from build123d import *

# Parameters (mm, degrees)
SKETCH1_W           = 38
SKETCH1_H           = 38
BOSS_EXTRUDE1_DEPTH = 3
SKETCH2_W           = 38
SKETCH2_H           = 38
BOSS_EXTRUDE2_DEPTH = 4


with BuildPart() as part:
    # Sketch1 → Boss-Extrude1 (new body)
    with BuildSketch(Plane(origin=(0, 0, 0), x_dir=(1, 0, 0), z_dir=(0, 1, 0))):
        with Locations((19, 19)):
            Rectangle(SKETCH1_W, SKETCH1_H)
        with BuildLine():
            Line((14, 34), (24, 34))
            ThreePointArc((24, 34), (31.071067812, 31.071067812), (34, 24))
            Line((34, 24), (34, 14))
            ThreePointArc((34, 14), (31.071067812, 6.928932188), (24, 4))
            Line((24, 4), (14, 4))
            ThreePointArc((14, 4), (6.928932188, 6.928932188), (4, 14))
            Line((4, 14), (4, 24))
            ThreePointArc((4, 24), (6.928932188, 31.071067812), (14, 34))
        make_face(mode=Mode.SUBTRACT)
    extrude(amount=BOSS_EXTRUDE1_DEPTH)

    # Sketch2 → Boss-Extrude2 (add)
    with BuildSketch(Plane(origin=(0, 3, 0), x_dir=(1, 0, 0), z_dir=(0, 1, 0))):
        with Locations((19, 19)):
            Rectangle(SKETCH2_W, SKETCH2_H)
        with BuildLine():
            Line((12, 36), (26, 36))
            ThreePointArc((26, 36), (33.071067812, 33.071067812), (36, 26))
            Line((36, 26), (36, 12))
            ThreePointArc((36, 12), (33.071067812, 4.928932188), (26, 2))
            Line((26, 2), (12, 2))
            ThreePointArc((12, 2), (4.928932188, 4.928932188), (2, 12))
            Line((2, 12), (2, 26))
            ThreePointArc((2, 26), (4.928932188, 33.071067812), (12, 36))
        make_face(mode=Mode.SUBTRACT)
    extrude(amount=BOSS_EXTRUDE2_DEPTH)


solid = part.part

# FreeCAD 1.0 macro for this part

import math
import FreeCAD as App
import Part
import Sketcher
from FreeCAD import Vector


def add_polygon(sketch, points):
    """Adds a closed chain of lines whose ends are joined by coincident constraints."""
    first, n = sketch.GeometryCount, len(points)
    for a, b in zip(points, points[1:] + points[:1]):
        sketch.addGeometry(Part.LineSegment(App.Vector(*a, 0), App.Vector(*b, 0)), False)
    for i in range(n):
        sketch.addConstraint(Sketcher.Constraint("Coincident", first + i, 2, first + (i + 1) % n, 1))

doc = App.newDocument("Part")
body = doc.addObject("PartDesign::Body", "Body")

sketch1 = body.newObject("Sketcher::SketchObject", "Sketch")
sketch1.AttachmentSupport = (doc.getObject("XZ_Plane"), [""])
sketch1.MapMode = "FlatFace"
add_polygon(sketch1, [(0, -38), (0, 0), (38, 0), (38, -38)])
sketch1.addGeometry(Part.ArcOfCircle(Part.Circle(Vector(14, -24, 0), Vector(0, 0, 1), 10), math.radians(180), math.radians(270)), False)
sketch1.addGeometry(Part.LineSegment(Vector(14, -34, 0), Vector(24, -34, 0)), False)
sketch1.addGeometry(Part.ArcOfCircle(Part.Circle(Vector(24, -24, 0), Vector(0, 0, 1), 10), math.radians(-90), math.radians(0)), False)
sketch1.addGeometry(Part.LineSegment(Vector(34, -24, 0), Vector(34, -14, 0)), False)
sketch1.addGeometry(Part.ArcOfCircle(Part.Circle(Vector(24, -14, 0), Vector(0, 0, 1), 10), math.radians(0), math.radians(90)), False)
sketch1.addGeometry(Part.LineSegment(Vector(24, -4, 0), Vector(14, -4, 0)), False)
sketch1.addGeometry(Part.ArcOfCircle(Part.Circle(Vector(14, -14, 0), Vector(0, 0, 1), 10), math.radians(90), math.radians(180)), False)
sketch1.addGeometry(Part.LineSegment(Vector(4, -14, 0), Vector(4, -24, 0)), False)
sketch1.addConstraint(Sketcher.Constraint("Tangent", 4, 2, 5, 1))
sketch1.addConstraint(Sketcher.Constraint("Tangent", 5, 2, 6, 1))
sketch1.addConstraint(Sketcher.Constraint("Tangent", 6, 2, 7, 1))
sketch1.addConstraint(Sketcher.Constraint("Tangent", 7, 2, 8, 1))
sketch1.addConstraint(Sketcher.Constraint("Tangent", 8, 2, 9, 1))
sketch1.addConstraint(Sketcher.Constraint("Tangent", 9, 2, 10, 1))
sketch1.addConstraint(Sketcher.Constraint("Tangent", 10, 2, 11, 1))
sketch1.addConstraint(Sketcher.Constraint("Tangent", 11, 2, 4, 1))
sketch1.addConstraint(Sketcher.Constraint("Vertical", 0))
sketch1.addConstraint(Sketcher.Constraint("Horizontal", 1))
sketch1.addConstraint(Sketcher.Constraint("Vertical", 2))
sketch1.addConstraint(Sketcher.Constraint("Horizontal", 3))
sketch1.addConstraint(Sketcher.Constraint("Horizontal", 5))
sketch1.addConstraint(Sketcher.Constraint("Vertical", 7))
sketch1.addConstraint(Sketcher.Constraint("Horizontal", 9))
sketch1.addConstraint(Sketcher.Constraint("Vertical", 11))
sketch1.addConstraint(Sketcher.Constraint("Coincident", 0, 2, -1, 1))
sketch1.addConstraint(Sketcher.Constraint("Equal", 4, 6))
sketch1.addConstraint(Sketcher.Constraint("Equal", 6, 8))
sketch1.addConstraint(Sketcher.Constraint("Equal", 8, 10))
sketch1.addConstraint(Sketcher.Constraint("Equal", 3, 0))
sketch1.addConstraint(Sketcher.Constraint("Equal", 9, 7))
sketch1.addConstraint(Sketcher.Constraint("Radius", 4, 10.0))
sketch1.addConstraint(Sketcher.Constraint("DistanceX", 1, 1, 1, 2, 38.0))
sketch1.addConstraint(Sketcher.Constraint("DistanceX", 5, 1, 5, 2, 10.0))
sketch1.addConstraint(Sketcher.Constraint("DistanceX", -1, 1, 4, 3, 14.0))
sketch1.addConstraint(Sketcher.Constraint("DistanceY", 4, 3, -1, 1, 24.0))
pad1 = body.newObject("PartDesign::Pad", "Pad")
pad1.Profile = sketch1
pad1.Length = 3
pad1.Reversed = True

sketch2 = body.newObject("Sketcher::SketchObject", "Sketch001")
sketch2.AttachmentSupport = (doc.getObject("XZ_Plane"), [""])
sketch2.MapMode = "FlatFace"
sketch2.AttachmentOffset = App.Placement(Vector(0, 0, -3), App.Rotation())
add_polygon(sketch2, [(0, -38), (0, 0), (38, 0), (38, -38)])
sketch2.addGeometry(Part.ArcOfCircle(Part.Circle(Vector(12, -26, 0), Vector(0, 0, 1), 10), math.radians(180), math.radians(270)), False)
sketch2.addGeometry(Part.LineSegment(Vector(12, -36, 0), Vector(26, -36, 0)), False)
sketch2.addGeometry(Part.ArcOfCircle(Part.Circle(Vector(26, -26, 0), Vector(0, 0, 1), 10), math.radians(-90), math.radians(0)), False)
sketch2.addGeometry(Part.LineSegment(Vector(36, -26, 0), Vector(36, -12, 0)), False)
sketch2.addGeometry(Part.ArcOfCircle(Part.Circle(Vector(26, -12, 0), Vector(0, 0, 1), 10), math.radians(0), math.radians(90)), False)
sketch2.addGeometry(Part.LineSegment(Vector(26, -2, 0), Vector(12, -2, 0)), False)
sketch2.addGeometry(Part.ArcOfCircle(Part.Circle(Vector(12, -12, 0), Vector(0, 0, 1), 10), math.radians(90), math.radians(180)), False)
sketch2.addGeometry(Part.LineSegment(Vector(2, -12, 0), Vector(2, -26, 0)), False)
sketch2.addConstraint(Sketcher.Constraint("Tangent", 4, 2, 5, 1))
sketch2.addConstraint(Sketcher.Constraint("Tangent", 5, 2, 6, 1))
sketch2.addConstraint(Sketcher.Constraint("Tangent", 6, 2, 7, 1))
sketch2.addConstraint(Sketcher.Constraint("Tangent", 7, 2, 8, 1))
sketch2.addConstraint(Sketcher.Constraint("Tangent", 8, 2, 9, 1))
sketch2.addConstraint(Sketcher.Constraint("Tangent", 9, 2, 10, 1))
sketch2.addConstraint(Sketcher.Constraint("Tangent", 10, 2, 11, 1))
sketch2.addConstraint(Sketcher.Constraint("Tangent", 11, 2, 4, 1))
sketch2.addConstraint(Sketcher.Constraint("Vertical", 0))
sketch2.addConstraint(Sketcher.Constraint("Horizontal", 1))
sketch2.addConstraint(Sketcher.Constraint("Vertical", 2))
sketch2.addConstraint(Sketcher.Constraint("Horizontal", 3))
sketch2.addConstraint(Sketcher.Constraint("Horizontal", 5))
sketch2.addConstraint(Sketcher.Constraint("Vertical", 7))
sketch2.addConstraint(Sketcher.Constraint("Horizontal", 9))
sketch2.addConstraint(Sketcher.Constraint("Vertical", 11))
sketch2.addConstraint(Sketcher.Constraint("Coincident", 0, 2, -1, 1))
sketch2.addConstraint(Sketcher.Constraint("Equal", 4, 6))
sketch2.addConstraint(Sketcher.Constraint("Equal", 6, 8))
sketch2.addConstraint(Sketcher.Constraint("Equal", 8, 10))
sketch2.addConstraint(Sketcher.Constraint("Equal", 3, 0))
sketch2.addConstraint(Sketcher.Constraint("Equal", 9, 7))
sketch2.addConstraint(Sketcher.Constraint("Radius", 4, 10.0))
sketch2.addConstraint(Sketcher.Constraint("DistanceX", 1, 1, 1, 2, 38.0))
sketch2.addConstraint(Sketcher.Constraint("DistanceX", 5, 1, 5, 2, 14.0))
sketch2.addConstraint(Sketcher.Constraint("DistanceX", -1, 1, 4, 3, 12.0))
sketch2.addConstraint(Sketcher.Constraint("DistanceY", 4, 3, -1, 1, 26.0))
pad2 = body.newObject("PartDesign::Pad", "Pad001")
pad2.Profile = sketch2
pad2.Length = 4
pad2.Reversed = True

doc.recompute()
